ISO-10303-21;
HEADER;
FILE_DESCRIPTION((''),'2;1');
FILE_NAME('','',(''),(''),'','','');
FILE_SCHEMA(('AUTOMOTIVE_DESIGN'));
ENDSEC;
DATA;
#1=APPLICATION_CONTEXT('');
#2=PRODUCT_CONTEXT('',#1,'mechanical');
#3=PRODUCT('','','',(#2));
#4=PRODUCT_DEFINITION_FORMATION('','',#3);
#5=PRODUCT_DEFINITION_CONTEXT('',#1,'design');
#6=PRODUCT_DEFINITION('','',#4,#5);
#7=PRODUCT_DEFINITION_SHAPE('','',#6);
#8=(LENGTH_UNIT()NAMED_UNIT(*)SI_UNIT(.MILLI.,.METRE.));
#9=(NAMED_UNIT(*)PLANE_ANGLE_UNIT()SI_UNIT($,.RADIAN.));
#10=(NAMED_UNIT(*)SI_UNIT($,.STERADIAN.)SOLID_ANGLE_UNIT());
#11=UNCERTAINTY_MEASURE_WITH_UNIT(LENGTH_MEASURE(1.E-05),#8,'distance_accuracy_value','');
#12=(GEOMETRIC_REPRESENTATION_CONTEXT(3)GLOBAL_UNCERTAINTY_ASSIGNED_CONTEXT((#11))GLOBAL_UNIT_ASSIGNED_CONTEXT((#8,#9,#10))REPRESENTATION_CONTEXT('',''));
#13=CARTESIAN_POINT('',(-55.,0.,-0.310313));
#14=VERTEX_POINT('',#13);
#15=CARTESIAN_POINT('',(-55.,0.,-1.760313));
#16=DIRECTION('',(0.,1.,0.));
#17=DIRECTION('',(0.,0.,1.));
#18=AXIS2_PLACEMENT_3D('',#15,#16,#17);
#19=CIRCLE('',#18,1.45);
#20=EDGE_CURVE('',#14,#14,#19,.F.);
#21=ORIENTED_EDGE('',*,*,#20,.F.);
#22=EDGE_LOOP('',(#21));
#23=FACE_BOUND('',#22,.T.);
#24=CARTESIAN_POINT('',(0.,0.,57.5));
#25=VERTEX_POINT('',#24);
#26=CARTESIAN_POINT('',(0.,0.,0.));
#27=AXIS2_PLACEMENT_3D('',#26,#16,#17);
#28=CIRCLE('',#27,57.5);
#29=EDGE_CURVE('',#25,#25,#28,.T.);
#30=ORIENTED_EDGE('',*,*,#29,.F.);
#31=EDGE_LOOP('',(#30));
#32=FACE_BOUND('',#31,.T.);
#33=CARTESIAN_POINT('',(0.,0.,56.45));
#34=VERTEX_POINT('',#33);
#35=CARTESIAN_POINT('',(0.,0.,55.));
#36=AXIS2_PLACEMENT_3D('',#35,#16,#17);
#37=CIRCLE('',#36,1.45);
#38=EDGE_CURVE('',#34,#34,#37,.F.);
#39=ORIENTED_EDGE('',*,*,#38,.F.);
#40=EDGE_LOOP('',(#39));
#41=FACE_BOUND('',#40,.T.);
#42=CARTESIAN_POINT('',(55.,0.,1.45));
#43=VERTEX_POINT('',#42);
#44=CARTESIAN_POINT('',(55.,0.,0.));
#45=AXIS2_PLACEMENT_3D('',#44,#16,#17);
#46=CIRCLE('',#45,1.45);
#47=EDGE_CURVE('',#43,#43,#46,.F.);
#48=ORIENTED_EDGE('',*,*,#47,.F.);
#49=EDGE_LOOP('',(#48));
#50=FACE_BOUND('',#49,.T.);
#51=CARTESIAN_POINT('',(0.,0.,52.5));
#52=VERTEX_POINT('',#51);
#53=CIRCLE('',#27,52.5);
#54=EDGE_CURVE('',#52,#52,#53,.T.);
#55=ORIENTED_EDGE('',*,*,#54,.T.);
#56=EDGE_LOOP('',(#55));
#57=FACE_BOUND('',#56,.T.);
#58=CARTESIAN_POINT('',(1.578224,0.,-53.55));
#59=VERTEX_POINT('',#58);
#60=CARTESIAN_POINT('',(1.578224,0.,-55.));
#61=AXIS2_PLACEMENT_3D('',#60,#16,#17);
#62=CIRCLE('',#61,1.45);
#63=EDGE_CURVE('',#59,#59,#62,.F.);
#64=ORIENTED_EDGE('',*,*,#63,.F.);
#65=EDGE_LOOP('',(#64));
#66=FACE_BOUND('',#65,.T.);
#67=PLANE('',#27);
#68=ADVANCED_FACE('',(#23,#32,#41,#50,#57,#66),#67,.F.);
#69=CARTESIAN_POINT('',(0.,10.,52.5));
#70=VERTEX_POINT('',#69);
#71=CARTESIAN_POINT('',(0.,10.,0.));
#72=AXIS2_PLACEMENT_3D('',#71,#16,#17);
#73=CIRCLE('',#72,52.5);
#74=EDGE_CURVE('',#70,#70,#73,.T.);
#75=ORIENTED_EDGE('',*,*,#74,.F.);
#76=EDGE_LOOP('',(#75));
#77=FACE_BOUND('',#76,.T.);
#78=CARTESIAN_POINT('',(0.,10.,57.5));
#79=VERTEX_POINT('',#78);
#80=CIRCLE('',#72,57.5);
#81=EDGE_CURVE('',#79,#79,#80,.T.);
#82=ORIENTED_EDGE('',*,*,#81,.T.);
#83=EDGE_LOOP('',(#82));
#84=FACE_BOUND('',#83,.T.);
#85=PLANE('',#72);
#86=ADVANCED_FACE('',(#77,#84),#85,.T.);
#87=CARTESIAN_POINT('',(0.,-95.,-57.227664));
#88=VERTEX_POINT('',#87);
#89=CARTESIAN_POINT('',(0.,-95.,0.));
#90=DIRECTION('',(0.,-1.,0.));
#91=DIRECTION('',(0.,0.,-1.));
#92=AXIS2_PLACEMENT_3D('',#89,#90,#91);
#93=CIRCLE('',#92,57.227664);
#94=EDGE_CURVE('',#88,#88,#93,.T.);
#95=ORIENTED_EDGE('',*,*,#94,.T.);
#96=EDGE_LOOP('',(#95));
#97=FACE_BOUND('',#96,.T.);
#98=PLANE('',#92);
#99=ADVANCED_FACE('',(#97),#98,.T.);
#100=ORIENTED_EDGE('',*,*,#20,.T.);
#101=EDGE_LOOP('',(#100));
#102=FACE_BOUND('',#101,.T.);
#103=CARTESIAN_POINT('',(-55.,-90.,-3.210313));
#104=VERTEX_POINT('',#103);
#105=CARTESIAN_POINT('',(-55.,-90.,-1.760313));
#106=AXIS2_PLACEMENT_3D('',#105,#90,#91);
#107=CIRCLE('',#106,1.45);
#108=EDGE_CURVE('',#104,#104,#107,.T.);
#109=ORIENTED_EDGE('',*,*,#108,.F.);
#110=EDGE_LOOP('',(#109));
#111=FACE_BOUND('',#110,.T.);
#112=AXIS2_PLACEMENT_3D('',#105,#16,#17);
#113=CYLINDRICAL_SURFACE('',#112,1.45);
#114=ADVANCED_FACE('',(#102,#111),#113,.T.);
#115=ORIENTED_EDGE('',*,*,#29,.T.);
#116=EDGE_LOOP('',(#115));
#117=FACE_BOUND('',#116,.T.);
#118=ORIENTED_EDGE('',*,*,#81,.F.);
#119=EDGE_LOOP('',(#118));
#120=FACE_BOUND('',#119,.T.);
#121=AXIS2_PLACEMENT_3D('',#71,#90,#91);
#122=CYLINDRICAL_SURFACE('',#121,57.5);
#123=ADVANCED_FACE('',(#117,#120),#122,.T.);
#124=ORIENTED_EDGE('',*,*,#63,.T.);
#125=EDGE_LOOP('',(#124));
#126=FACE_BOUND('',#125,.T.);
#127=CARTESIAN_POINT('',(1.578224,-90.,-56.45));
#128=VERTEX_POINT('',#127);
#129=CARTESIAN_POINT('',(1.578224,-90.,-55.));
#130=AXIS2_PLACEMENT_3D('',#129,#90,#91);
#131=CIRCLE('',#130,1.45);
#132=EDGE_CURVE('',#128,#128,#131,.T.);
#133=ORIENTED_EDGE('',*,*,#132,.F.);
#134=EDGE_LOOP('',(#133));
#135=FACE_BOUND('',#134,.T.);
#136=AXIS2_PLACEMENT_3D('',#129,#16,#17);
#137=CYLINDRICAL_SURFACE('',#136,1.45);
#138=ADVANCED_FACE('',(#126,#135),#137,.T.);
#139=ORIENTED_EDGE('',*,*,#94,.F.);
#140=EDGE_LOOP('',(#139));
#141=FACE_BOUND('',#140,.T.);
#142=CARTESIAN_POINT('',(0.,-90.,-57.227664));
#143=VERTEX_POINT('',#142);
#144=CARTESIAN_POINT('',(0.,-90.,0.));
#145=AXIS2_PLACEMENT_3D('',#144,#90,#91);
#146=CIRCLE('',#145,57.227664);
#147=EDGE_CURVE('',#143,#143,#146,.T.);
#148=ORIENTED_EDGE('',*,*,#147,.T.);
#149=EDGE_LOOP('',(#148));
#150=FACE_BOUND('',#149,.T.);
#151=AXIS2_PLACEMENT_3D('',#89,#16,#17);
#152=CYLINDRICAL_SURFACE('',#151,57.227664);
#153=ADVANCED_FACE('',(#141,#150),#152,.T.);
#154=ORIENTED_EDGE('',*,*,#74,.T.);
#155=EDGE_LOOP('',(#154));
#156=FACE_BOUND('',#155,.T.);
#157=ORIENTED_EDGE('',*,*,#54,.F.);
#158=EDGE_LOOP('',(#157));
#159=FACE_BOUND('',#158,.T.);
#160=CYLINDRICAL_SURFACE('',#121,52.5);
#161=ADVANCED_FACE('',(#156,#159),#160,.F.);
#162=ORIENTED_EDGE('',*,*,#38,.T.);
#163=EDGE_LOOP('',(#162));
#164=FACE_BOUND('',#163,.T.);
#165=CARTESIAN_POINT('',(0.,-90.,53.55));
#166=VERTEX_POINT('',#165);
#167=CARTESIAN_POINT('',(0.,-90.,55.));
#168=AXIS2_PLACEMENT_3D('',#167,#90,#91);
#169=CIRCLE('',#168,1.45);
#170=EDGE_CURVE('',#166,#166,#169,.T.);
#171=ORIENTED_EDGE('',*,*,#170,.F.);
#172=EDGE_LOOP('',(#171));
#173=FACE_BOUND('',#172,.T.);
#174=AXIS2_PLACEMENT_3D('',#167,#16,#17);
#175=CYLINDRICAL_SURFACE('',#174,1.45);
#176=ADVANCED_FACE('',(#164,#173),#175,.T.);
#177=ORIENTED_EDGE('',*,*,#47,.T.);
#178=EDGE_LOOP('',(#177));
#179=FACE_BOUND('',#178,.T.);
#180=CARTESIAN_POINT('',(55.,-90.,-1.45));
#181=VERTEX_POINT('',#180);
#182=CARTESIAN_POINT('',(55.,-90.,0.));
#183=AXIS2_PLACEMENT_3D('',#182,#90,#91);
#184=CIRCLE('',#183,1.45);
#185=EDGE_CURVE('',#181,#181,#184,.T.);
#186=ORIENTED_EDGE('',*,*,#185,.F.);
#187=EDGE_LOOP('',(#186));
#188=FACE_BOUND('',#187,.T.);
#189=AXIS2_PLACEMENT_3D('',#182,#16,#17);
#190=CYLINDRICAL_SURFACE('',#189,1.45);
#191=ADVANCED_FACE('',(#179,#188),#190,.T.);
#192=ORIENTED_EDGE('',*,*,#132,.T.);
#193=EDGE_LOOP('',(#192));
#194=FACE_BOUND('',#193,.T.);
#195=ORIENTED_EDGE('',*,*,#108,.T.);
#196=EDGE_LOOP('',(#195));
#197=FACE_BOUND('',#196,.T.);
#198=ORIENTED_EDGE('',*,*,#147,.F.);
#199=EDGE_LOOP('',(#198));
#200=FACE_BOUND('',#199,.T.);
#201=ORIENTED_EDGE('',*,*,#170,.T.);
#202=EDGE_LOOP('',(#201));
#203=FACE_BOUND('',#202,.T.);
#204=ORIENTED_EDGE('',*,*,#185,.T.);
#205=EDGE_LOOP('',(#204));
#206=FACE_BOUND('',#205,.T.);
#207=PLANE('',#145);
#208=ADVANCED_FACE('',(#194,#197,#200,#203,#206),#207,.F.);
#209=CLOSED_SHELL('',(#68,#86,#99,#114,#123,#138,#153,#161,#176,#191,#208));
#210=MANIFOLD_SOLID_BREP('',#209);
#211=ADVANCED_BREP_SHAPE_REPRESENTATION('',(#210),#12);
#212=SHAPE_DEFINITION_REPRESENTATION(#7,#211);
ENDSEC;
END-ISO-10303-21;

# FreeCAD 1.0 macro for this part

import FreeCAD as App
import Part
import Sketcher

doc = App.newDocument("Part")
body = doc.addObject("PartDesign::Body", "Body")

# Sketch on XZ plane
sketch1 = body.newObject("Sketcher::SketchObject", "Sketch")
sketch1.AttachmentSupport = (doc.getObject("XZ_Plane"), [""])
sketch1.MapMode = "FlatFace"
sketch1.addGeometry(Part.Circle(App.Vector(0, 0, 0), App.Vector(0, 0, 1), 58), False)
sketch1.addGeometry(Part.Circle(App.Vector(0, 0, 0), App.Vector(0, 0, 1), 52), False)
sketch1.addConstraint(Sketcher.Constraint("Coincident", 0, 3, -1, 1))
sketch1.addConstraint(Sketcher.Constraint("Coincident", 1, 3, -1, 1))
sketch1.addConstraint(Sketcher.Constraint("Diameter", 0, 115.0))
sketch1.addConstraint(Sketcher.Constraint("Diameter", 1, 105.0))
pad1 = body.newObject("PartDesign::Pad", "Pad")
pad1.Profile = sketch1
pad1.Length = 10
pad1.Reversed = True

# Sketch on XZ plane
sketch2 = body.newObject("Sketcher::SketchObject", "Sketch001")
sketch2.AttachmentSupport = (doc.getObject("XZ_Plane"), [""])
sketch2.MapMode = "FlatFace"
sketch2.addGeometry(Part.Circle(App.Vector(0, 55, 0), App.Vector(0, 0, 1), 1.4), False)
sketch2.addGeometry(Part.Circle(App.Vector(1.6, -55, 0), App.Vector(0, 0, 1), 1.4), False)
sketch2.addGeometry(Part.Circle(App.Vector(55, 0, 0), App.Vector(0, 0, 1), 1.4), False)
sketch2.addGeometry(Part.Circle(App.Vector(-55, -1.8, 0), App.Vector(0, 0, 1), 1.4), False)
sketch2.addConstraint(Sketcher.Constraint("Equal", 0, 1))
sketch2.addConstraint(Sketcher.Constraint("Equal", 1, 2))
sketch2.addConstraint(Sketcher.Constraint("Equal", 2, 3))
sketch2.addConstraint(Sketcher.Constraint("PointOnObject", 0, 3, -2))
sketch2.addConstraint(Sketcher.Constraint("PointOnObject", 2, 3, -1))
sketch2.addConstraint(Sketcher.Constraint("Diameter", 0, 2.9))
sketch2.addConstraint(Sketcher.Constraint("DistanceY", -1, 1, 0, 3, 55.0))
sketch2.addConstraint(Sketcher.Constraint("DistanceY", 1, 3, -1, 1, 55.0))
sketch2.addConstraint(Sketcher.Constraint("DistanceX", -1, 1, 2, 3, 55.0))
sketch2.addConstraint(Sketcher.Constraint("DistanceX", 3, 3, -1, 1, 55.0))
sketch2.addConstraint(Sketcher.Constraint("DistanceX", -1, 1, 1, 3, 1.578224))
sketch2.addConstraint(Sketcher.Constraint("DistanceY", 3, 3, -1, 1, 1.760313))
pad2 = body.newObject("PartDesign::Pad", "Pad001")
pad2.Profile = sketch2
pad2.Length = 90

# Sketch on XZ plane
sketch3 = body.newObject("Sketcher::SketchObject", "Sketch002")
sketch3.AttachmentSupport = (doc.getObject("XZ_Plane"), [""])
sketch3.MapMode = "FlatFace"
sketch3.AttachmentOffset = App.Placement(App.Vector(0, 0, 90), App.Rotation())
sketch3.addGeometry(Part.Circle(App.Vector(0, 0, 0), App.Vector(0, 0, 1), 57), False)
sketch3.addConstraint(Sketcher.Constraint("Coincident", 0, 3, -1, 1))
sketch3.addConstraint(Sketcher.Constraint("Diameter", 0, 114.455328))
pad3 = body.newObject("PartDesign::Pad", "Pad002")
pad3.Profile = sketch3
pad3.Length = 5

doc.recompute()
